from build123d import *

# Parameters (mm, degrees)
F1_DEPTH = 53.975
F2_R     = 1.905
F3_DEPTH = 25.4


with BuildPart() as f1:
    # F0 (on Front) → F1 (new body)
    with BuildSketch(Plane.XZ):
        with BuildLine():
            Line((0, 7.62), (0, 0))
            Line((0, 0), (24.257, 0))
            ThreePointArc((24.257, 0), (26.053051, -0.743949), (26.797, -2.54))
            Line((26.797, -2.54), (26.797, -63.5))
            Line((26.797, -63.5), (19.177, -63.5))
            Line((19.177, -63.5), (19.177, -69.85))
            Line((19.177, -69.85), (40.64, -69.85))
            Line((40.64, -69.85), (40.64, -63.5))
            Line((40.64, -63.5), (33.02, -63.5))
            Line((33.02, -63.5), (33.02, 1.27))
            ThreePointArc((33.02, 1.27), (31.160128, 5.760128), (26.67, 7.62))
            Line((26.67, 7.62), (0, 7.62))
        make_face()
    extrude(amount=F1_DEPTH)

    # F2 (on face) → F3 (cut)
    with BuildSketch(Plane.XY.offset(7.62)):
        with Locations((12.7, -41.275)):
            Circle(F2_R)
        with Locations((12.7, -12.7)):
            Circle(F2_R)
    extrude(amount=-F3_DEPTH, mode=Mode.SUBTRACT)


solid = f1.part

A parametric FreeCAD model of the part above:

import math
import FreeCAD as App
import Part
import Sketcher
Q = App.Units.Quantity

doc = App.newDocument("Part")
body = doc.addObject("PartDesign::Body", "Body")

sketch1 = doc.addObject("Sketcher::SketchObject", "Sketch")
body.addObject(sketch1)
sketch1.AttachmentSupport = (doc.XZ_Plane, [""])
sketch1.MapMode = "FlatFace"
sketch1.addGeometry([
    Part.LineSegment(App.Vector(0, 7.6, 0), App.Vector(0, 0, 0)),
    Part.LineSegment(App.Vector(0, 0, 0), App.Vector(24.3, 0, 0)),
    Part.ArcOfCircle(Part.Circle(App.Vector(24.3, -2.5, 0), App.Vector(0, 0, 1), 2.5), math.radians(0), math.radians(90)),
    Part.LineSegment(App.Vector(26.8, -2.5, 0), App.Vector(26.8, -63.5, 0)),
    Part.LineSegment(App.Vector(26.8, -63.5, 0), App.Vector(19.2, -63.5, 0)),
    Part.LineSegment(App.Vector(19.2, -63.5, 0), App.Vector(19.2, -69.8, 0)),
    Part.LineSegment(App.Vector(19.2, -69.8, 0), App.Vector(40.6, -69.8, 0)),
    Part.LineSegment(App.Vector(40.6, -69.8, 0), App.Vector(40.6, -63.5, 0)),
    Part.LineSegment(App.Vector(40.6, -63.5, 0), App.Vector(33, -63.5, 0)),
    Part.LineSegment(App.Vector(33, -63.5, 0), App.Vector(33, 1.3, 0)),
    Part.ArcOfCircle(Part.Circle(App.Vector(26.7, 1.3, 0), App.Vector(0, 0, 1), 6.4), math.radians(0), math.radians(90)),
    Part.LineSegment(App.Vector(26.7, 7.6, 0), App.Vector(0, 7.6, 0)),
], False)
sketch1.addConstraint([
    Sketcher.Constraint("Coincident", 0, 2, 1, 1),
    Sketcher.Constraint("Tangent", 1, 2, 2, 2),
    Sketcher.Constraint("Tangent", 2, 1, 3, 1),
    Sketcher.Constraint("Coincident", 3, 2, 4, 1),
    Sketcher.Constraint("Coincident", 4, 2, 5, 1),
    Sketcher.Constraint("Coincident", 5, 2, 6, 1),
    Sketcher.Constraint("Coincident", 6, 2, 7, 1),
    Sketcher.Constraint("Coincident", 7, 2, 8, 1),
    Sketcher.Constraint("Coincident", 8, 2, 9, 1),
    Sketcher.Constraint("Tangent", 9, 2, 10, 1),
    Sketcher.Constraint("Tangent", 10, 2, 11, 1),
    Sketcher.Constraint("Coincident", 11, 2, 0, 1),
    Sketcher.Constraint("Vertical", 0),
    Sketcher.Constraint("Horizontal", 1),
    Sketcher.Constraint("Vertical", 3),
    Sketcher.Constraint("Horizontal", 4),
    Sketcher.Constraint("Vertical", 5),
    Sketcher.Constraint("Horizontal", 6),
    Sketcher.Constraint("Vertical", 7),
    Sketcher.Constraint("Horizontal", 8),
    Sketcher.Constraint("Vertical", 9),
    Sketcher.Constraint("Horizontal", 11),
    Sketcher.Constraint("Coincident", 0, 2, -1, 1),
    Sketcher.Constraint("Horizontal", 4, 2, 7, 2),
    Sketcher.Constraint("Equal", 4, 8),
    Sketcher.Constraint("Equal", 8, 0),
    Sketcher.Constraint("Radius", 2, Q("0.1 in")),
    Sketcher.Constraint("Radius", 10, Q("0.25 in")),
    Sketcher.Constraint("DistanceX", 4, 2, 4, 1, Q("0.3 in")),
    Sketcher.Constraint("DistanceY", 3, 2, 3, 1, Q("2.4 in")),
    Sketcher.Constraint("DistanceX", 11, 2, 11, 1, Q("1.05 in")),
    Sketcher.Constraint("DistanceY", 5, 2, 5, 1, Q("0.25 in")),
    Sketcher.Constraint("DistanceX", 1, 1, 1, 2, Q("0.955 in")),
])
pad1 = doc.addObject("PartDesign::Pad", "Pad")
body.addObject(pad1)
pad1.Profile = sketch1
pad1.Length = Q("2.125 in")

sketch2 = doc.addObject("Sketcher::SketchObject", "Sketch001")
body.addObject(sketch2)
sketch2.AttachmentSupport = (doc.XY_Plane, [""])
sketch2.MapMode = "FlatFace"
sketch2.AttachmentOffset = App.Placement(App.Vector(0, 0, 0.3 * 25.4), App.Rotation())
sketch2.addGeometry([
    Part.Circle(App.Vector(12.7, -41.3, 0), App.Vector(0, 0, 1), 1.9),
    Part.Circle(App.Vector(12.7, -12.7, 0), App.Vector(0, 0, 1), 1.9),
], False)
sketch2.addConstraint([
    Sketcher.Constraint("Equal", 0, 1),
    Sketcher.Constraint("Vertical", 0, 3, 1, 3),
    Sketcher.Constraint("Diameter", 0, Q("0.15 in")),
    Sketcher.Constraint("DistanceX", -1, 1, 0, 3, Q("0.5 in")),
    Sketcher.Constraint("DistanceY", 1, 3, -1, 1, Q("0.5 in")),
    Sketcher.Constraint("DistanceY", 0, 3, -1, 1, Q("1.625 in")),
])
pocket1 = doc.addObject("PartDesign::Pocket", "Pocket")
body.addObject(pocket1)
pocket1.Profile = sketch2
pocket1.Length = Q("1 in")

doc.recompute()
